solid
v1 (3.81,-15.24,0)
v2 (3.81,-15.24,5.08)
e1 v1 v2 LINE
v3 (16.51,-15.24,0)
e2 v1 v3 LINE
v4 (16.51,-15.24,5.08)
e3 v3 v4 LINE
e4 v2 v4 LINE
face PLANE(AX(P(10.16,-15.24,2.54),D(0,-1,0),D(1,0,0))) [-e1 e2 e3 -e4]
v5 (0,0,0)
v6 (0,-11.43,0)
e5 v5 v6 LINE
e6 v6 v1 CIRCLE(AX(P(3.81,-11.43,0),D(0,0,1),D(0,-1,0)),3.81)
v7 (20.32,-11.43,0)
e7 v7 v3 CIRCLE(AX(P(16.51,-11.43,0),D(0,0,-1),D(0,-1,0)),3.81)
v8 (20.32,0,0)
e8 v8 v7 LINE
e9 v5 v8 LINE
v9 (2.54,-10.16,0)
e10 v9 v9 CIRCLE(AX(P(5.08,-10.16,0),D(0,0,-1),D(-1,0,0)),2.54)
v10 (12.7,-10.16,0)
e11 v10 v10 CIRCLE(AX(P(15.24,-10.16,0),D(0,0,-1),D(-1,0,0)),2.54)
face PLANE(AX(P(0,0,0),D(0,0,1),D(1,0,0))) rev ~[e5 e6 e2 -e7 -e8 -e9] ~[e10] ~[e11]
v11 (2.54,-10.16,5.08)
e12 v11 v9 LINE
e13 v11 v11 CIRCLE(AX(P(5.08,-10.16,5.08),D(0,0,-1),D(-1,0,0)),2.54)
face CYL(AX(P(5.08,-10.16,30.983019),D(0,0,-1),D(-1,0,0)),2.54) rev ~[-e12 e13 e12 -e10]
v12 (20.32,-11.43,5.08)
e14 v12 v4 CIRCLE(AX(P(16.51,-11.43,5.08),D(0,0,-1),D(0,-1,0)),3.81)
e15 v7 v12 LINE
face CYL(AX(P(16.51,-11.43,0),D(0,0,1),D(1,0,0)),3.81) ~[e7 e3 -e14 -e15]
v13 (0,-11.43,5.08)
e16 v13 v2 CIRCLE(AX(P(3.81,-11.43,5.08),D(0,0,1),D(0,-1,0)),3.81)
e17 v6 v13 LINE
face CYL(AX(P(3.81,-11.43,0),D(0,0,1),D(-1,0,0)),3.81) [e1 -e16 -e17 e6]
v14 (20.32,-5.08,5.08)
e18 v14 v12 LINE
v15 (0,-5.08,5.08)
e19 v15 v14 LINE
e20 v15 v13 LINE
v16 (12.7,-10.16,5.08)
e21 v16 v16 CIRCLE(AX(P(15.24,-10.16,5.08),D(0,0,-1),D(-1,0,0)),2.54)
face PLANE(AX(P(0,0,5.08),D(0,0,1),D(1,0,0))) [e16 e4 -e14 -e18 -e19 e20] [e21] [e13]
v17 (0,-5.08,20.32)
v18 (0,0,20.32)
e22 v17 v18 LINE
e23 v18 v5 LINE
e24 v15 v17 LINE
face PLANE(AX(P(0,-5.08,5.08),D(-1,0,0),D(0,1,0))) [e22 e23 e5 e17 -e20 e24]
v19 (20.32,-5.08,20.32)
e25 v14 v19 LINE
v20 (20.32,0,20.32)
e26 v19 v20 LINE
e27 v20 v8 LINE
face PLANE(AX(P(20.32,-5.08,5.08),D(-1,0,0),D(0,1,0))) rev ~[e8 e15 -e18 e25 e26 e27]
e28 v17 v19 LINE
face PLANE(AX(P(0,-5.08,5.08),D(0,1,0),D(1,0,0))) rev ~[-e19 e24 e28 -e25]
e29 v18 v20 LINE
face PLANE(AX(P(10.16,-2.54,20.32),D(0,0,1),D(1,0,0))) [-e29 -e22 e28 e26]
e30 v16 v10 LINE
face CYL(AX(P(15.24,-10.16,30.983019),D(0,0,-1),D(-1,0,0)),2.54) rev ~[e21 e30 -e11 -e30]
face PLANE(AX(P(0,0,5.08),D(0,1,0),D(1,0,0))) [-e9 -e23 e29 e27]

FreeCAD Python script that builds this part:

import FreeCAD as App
import Part
import Sketcher
from FreeCAD import Vector
Q = App.Units.Quantity


def edges_at(feature, points):
    """Names of the edges that pass closest to the given points."""
    edges = feature.Shape.Edges
    near = lambda p: min(range(len(edges)), key=lambda i: edges[i].distToShape(Part.Vertex(*p))[0])
    return sorted({f"Edge{near(p) + 1}" for p in points})

doc = App.newDocument("Part")
body = doc.addObject("PartDesign::Body", "Body")

# Sketch on XZ plane
sketch1 = body.newObject("Sketcher::SketchObject", "Sketch")
sketch1.AttachmentSupport = (doc.getObject("XZ_Plane"), [""])
sketch1.MapMode = "FlatFace"
sketch1.addGeometry([
    Part.LineSegment(Vector(0, 5, 0), Vector(0, 0, 0)),
    Part.LineSegment(Vector(0, 0, 0), Vector(20, 0, 0)),
    Part.LineSegment(Vector(20, 0, 0), Vector(20, 5, 0)),
    Part.LineSegment(Vector(20, 5, 0), Vector(0, 5, 0)),
], False)
sketch1.addConstraint([
    Sketcher.Constraint("Coincident", 0, 2, 1, 1),
    Sketcher.Constraint("Coincident", 1, 2, 2, 1),
    Sketcher.Constraint("Coincident", 2, 2, 3, 1),
    Sketcher.Constraint("Coincident", 3, 2, 0, 1),
    Sketcher.Constraint("Vertical", 0),
    Sketcher.Constraint("Horizontal", 1),
    Sketcher.Constraint("Vertical", 2),
    Sketcher.Constraint("Horizontal", 3),
    Sketcher.Constraint("Coincident", 0, 2, -1, 1),
    Sketcher.Constraint("DistanceX", 1, 1, 1, 2, Q("0.8 in")),
    Sketcher.Constraint("DistanceY", 0, 2, 0, 1, Q("0.2 in")),
])
pad1 = body.newObject("PartDesign::Pad", "Pad")
pad1.Profile = sketch1
pad1.Length = Q("0.6 in")
doc.recompute()

fillet = body.newObject("PartDesign::Fillet", "Fillet")
fillet.Base = (pad1, edges_at(pad1, [(20.32, -15.24, 2.54), (0, -15.24, 2.54)]))
fillet.Radius = Q("0.15 in")

# Sketch on XY plane
sketch2 = body.newObject("Sketcher::SketchObject", "Sketch001")
sketch2.AttachmentSupport = (doc.getObject("XY_Plane"), [""])
sketch2.MapMode = "FlatFace"
sketch2.AttachmentOffset = App.Placement(Vector(0, 0, 0.2 * 25.4), App.Rotation())
sketch2.addGeometry([
    Part.Circle(Vector(5.1, -10.2, 0), Vector(0, 0, 1), 2.5),
    Part.Circle(Vector(15.2, -10.2, 0), Vector(0, 0, 1), 2.5),
], False)
sketch2.addConstraint([
    Sketcher.Constraint("Equal", 0, 1),
    Sketcher.Constraint("Horizontal", 0, 3, 1, 3),
    Sketcher.Constraint("Diameter", 0, Q("0.2 in")),
    Sketcher.Constraint("DistanceX", -1, 1, 0, 3, Q("0.2 in")),
    Sketcher.Constraint("DistanceY", 0, 3, -1, 1, Q("0.4 in")),
    Sketcher.Constraint("DistanceX", -1, 1, 1, 3, Q("0.6 in")),
])
doc.recompute()
hole = body.newObject("PartDesign::Hole", "Hole")
hole.Profile = sketch2
hole.ThreadType = "None"
hole.Diameter = Q("0.2 in")
hole.DepthType = "ThroughAll"

# Sketch on XY plane
sketch3 = body.newObject("Sketcher::SketchObject", "Sketch002")
sketch3.AttachmentSupport = (doc.getObject("XY_Plane"), [""])
sketch3.MapMode = "FlatFace"
sketch3.AttachmentOffset = App.Placement(Vector(0, 0, 0.2 * 25.4), App.Rotation())
sketch3.addGeometry([
    Part.LineSegment(Vector(0, 0, 0), Vector(0, -5, 0)),
    Part.LineSegment(Vector(0, -5, 0), Vector(20, -5, 0)),
    Part.LineSegment(Vector(20, -5, 0), Vector(20, 0, 0)),
    Part.LineSegment(Vector(20, 0, 0), Vector(0, 0, 0)),
], False)
sketch3.addConstraint([
    Sketcher.Constraint("Coincident", 0, 2, 1, 1),
    Sketcher.Constraint("Coincident", 1, 2, 2, 1),
    Sketcher.Constraint("Coincident", 2, 2, 3, 1),
    Sketcher.Constraint("Coincident", 3, 2, 0, 1),
    Sketcher.Constraint("Vertical", 0),
    Sketcher.Constraint("Horizontal", 1),
    Sketcher.Constraint("Vertical", 2),
    Sketcher.Constraint("Horizontal", 3),
    Sketcher.Constraint("Coincident", 3, 2, -1, 1),
    Sketcher.Constraint("DistanceX", 1, 1, 1, 2, Q("0.8 in")),
    Sketcher.Constraint("DistanceY", 0, 2, 0, 1, Q("0.2 in")),
])
pad2 = body.newObject("PartDesign::Pad", "Pad001")
pad2.Profile = sketch3
pad2.Length = Q("0.6 in")

doc.recompute()
